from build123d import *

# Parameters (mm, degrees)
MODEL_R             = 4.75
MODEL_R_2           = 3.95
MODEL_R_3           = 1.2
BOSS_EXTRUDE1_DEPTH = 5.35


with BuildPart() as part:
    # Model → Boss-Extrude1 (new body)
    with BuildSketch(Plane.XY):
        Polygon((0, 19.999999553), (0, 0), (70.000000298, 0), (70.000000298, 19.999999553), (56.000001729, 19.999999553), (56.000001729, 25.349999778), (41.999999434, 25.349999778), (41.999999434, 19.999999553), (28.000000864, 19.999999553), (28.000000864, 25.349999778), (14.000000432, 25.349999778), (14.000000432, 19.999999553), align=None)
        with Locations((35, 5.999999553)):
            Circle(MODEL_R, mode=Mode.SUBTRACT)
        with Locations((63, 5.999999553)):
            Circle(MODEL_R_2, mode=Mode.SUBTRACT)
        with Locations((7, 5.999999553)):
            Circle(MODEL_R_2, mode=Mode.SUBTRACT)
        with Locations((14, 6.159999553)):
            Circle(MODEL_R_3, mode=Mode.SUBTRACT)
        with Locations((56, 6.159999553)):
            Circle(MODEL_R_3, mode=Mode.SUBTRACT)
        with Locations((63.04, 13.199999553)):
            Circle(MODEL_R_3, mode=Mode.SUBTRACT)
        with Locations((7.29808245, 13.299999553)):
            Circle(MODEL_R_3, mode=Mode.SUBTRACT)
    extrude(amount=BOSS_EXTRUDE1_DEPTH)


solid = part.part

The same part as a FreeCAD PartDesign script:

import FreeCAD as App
import Part
import Sketcher

V = App.Vector
Q = App.Units.Quantity


def add_polygon(sketch, points):
    """Adds a closed chain of lines whose ends are joined by coincident constraints."""
    first, n = sketch.GeometryCount, len(points)
    for a, b in zip(points, points[1:] + points[:1]):
        sketch.addGeometry(Part.LineSegment(App.Vector(*a, 0), App.Vector(*b, 0)), False)
    for i in range(n):
        sketch.addConstraint(Sketcher.Constraint("Coincident", first + i, 2, first + (i + 1) % n, 1))

doc = App.newDocument("Part")
body = doc.addObject("PartDesign::Body", "Body")

sketch1 = doc.addObject("Sketcher::SketchObject", "Sketch")
body.addObject(sketch1)
sketch1.AttachmentSupport = (doc.XY_Plane, [""])
sketch1.MapMode = "FlatFace"
add_polygon(sketch1, [(0, 20), (0, 0), (70, 0), (70, 20), (56.000002, 20), (56.000002, 25.35), (41.999999, 25.35), (41.999999, 20), (28.000001, 20), (28.000001, 25.35), (14, 25.35), (14, 20)])
sketch1.addGeometry(Part.Circle(V(7, 6, 0), V(0, 0, 1), 3.95), False)
sketch1.addGeometry(Part.Circle(V(14, 6.16, 0), V(0, 0, 1), 1.2), False)
sketch1.addGeometry(Part.Circle(V(35, 6, 0), V(0, 0, 1), 4.75), False)
sketch1.addGeometry(Part.Circle(V(56, 6.16, 0), V(0, 0, 1), 1.2), False)
sketch1.addGeometry(Part.Circle(V(63, 6, 0), V(0, 0, 1), 3.95), False)
sketch1.addGeometry(Part.Circle(V(7.298082, 13.3, 0), V(0, 0, 1), 1.2), False)
sketch1.addGeometry(Part.Circle(V(63.04, 13.2, 0), V(0, 0, 1), 1.2), False)
sketch1.addConstraint(Sketcher.Constraint("Vertical", 0))
sketch1.addConstraint(Sketcher.Constraint("Horizontal", 1))
sketch1.addConstraint(Sketcher.Constraint("Vertical", 2))
sketch1.addConstraint(Sketcher.Constraint("Horizontal", 3))
sketch1.addConstraint(Sketcher.Constraint("Vertical", 4))
sketch1.addConstraint(Sketcher.Constraint("Horizontal", 5))
sketch1.addConstraint(Sketcher.Constraint("Vertical", 6))
sketch1.addConstraint(Sketcher.Constraint("Horizontal", 7))
sketch1.addConstraint(Sketcher.Constraint("Vertical", 8))
sketch1.addConstraint(Sketcher.Constraint("Horizontal", 9))
sketch1.addConstraint(Sketcher.Constraint("Vertical", 10))
sketch1.addConstraint(Sketcher.Constraint("Horizontal", 11))
sketch1.addConstraint(Sketcher.Constraint("Coincident", 0, 2, -1, 1))
sketch1.addConstraint(Sketcher.Constraint("Equal", 13, 15))
sketch1.addConstraint(Sketcher.Constraint("Equal", 12, 16))
sketch1.addConstraint(Sketcher.Constraint("Equal", 15, 17))
sketch1.addConstraint(Sketcher.Constraint("Equal", 17, 18))
sketch1.addConstraint(Sketcher.Constraint("Horizontal", 12, 3, 14, 3))
sketch1.addConstraint(Sketcher.Constraint("Horizontal", 13, 3, 15, 3))
sketch1.addConstraint(Sketcher.Constraint("Horizontal", 14, 3, 16, 3))
sketch1.addConstraint(Sketcher.Constraint("Horizontal", 3, 2, 6, 2))
sketch1.addConstraint(Sketcher.Constraint("Horizontal", 5, 2, 8, 2))
sketch1.addConstraint(Sketcher.Constraint("Horizontal", 7, 2, 10, 2))
sketch1.addConstraint(Sketcher.Constraint("Vertical", 15, 3, 3, 2))
sketch1.addConstraint(Sketcher.Constraint("Vertical", 13, 3, 9, 2))
sketch1.addConstraint(Sketcher.Constraint("Equal", 3, 7))
sketch1.addConstraint(Sketcher.Constraint("Equal", 7, 9))
sketch1.addConstraint(Sketcher.Constraint("Equal", 9, 11))
sketch1.addConstraint(Sketcher.Constraint("Diameter", 12, Q("7.9 mm")))
sketch1.addConstraint(Sketcher.Constraint("Diameter", 13, Q("2.4 mm")))
sketch1.addConstraint(Sketcher.Constraint("Diameter", 14, Q("9.5 mm")))
sketch1.addConstraint(Sketcher.Constraint("DistanceX", 1, 1, 1, 2, Q("70 mm")))
sketch1.addConstraint(Sketcher.Constraint("DistanceX", 3, 2, 3, 1, Q("13.999999 mm")))
sketch1.addConstraint(Sketcher.Constraint("DistanceY", 0, 2, 0, 1, Q("20 mm")))
sketch1.addConstraint(Sketcher.Constraint("DistanceX", -1, 1, 12, 3, Q("7 mm")))
sketch1.addConstraint(Sketcher.Constraint("DistanceY", -1, 1, 12, 3, Q("6 mm")))
sketch1.addConstraint(Sketcher.Constraint("DistanceX", -1, 1, 14, 3, Q("35 mm")))
sketch1.addConstraint(Sketcher.Constraint("DistanceX", -1, 1, 16, 3, Q("63 mm")))
sketch1.addConstraint(Sketcher.Constraint("DistanceY", 4, 1, 4, 2, Q("5.35 mm")))
sketch1.addConstraint(Sketcher.Constraint("DistanceY", -1, 1, 17, 3, Q("13.3 mm")))
sketch1.addConstraint(Sketcher.Constraint("DistanceY", -1, 1, 18, 3, Q("13.2 mm")))
sketch1.addConstraint(Sketcher.Constraint("DistanceY", -1, 1, 13, 3, Q("6.16 mm")))
sketch1.addConstraint(Sketcher.Constraint("DistanceX", -1, 1, 18, 3, Q("63.04 mm")))
sketch1.addConstraint(Sketcher.Constraint("DistanceX", 17, 3, 7, 2, Q("20.701918 mm")))
pad1 = doc.addObject("PartDesign::Pad", "Pad")
body.addObject(pad1)
pad1.Profile = sketch1
pad1.Length = 5.35

doc.recompute()
